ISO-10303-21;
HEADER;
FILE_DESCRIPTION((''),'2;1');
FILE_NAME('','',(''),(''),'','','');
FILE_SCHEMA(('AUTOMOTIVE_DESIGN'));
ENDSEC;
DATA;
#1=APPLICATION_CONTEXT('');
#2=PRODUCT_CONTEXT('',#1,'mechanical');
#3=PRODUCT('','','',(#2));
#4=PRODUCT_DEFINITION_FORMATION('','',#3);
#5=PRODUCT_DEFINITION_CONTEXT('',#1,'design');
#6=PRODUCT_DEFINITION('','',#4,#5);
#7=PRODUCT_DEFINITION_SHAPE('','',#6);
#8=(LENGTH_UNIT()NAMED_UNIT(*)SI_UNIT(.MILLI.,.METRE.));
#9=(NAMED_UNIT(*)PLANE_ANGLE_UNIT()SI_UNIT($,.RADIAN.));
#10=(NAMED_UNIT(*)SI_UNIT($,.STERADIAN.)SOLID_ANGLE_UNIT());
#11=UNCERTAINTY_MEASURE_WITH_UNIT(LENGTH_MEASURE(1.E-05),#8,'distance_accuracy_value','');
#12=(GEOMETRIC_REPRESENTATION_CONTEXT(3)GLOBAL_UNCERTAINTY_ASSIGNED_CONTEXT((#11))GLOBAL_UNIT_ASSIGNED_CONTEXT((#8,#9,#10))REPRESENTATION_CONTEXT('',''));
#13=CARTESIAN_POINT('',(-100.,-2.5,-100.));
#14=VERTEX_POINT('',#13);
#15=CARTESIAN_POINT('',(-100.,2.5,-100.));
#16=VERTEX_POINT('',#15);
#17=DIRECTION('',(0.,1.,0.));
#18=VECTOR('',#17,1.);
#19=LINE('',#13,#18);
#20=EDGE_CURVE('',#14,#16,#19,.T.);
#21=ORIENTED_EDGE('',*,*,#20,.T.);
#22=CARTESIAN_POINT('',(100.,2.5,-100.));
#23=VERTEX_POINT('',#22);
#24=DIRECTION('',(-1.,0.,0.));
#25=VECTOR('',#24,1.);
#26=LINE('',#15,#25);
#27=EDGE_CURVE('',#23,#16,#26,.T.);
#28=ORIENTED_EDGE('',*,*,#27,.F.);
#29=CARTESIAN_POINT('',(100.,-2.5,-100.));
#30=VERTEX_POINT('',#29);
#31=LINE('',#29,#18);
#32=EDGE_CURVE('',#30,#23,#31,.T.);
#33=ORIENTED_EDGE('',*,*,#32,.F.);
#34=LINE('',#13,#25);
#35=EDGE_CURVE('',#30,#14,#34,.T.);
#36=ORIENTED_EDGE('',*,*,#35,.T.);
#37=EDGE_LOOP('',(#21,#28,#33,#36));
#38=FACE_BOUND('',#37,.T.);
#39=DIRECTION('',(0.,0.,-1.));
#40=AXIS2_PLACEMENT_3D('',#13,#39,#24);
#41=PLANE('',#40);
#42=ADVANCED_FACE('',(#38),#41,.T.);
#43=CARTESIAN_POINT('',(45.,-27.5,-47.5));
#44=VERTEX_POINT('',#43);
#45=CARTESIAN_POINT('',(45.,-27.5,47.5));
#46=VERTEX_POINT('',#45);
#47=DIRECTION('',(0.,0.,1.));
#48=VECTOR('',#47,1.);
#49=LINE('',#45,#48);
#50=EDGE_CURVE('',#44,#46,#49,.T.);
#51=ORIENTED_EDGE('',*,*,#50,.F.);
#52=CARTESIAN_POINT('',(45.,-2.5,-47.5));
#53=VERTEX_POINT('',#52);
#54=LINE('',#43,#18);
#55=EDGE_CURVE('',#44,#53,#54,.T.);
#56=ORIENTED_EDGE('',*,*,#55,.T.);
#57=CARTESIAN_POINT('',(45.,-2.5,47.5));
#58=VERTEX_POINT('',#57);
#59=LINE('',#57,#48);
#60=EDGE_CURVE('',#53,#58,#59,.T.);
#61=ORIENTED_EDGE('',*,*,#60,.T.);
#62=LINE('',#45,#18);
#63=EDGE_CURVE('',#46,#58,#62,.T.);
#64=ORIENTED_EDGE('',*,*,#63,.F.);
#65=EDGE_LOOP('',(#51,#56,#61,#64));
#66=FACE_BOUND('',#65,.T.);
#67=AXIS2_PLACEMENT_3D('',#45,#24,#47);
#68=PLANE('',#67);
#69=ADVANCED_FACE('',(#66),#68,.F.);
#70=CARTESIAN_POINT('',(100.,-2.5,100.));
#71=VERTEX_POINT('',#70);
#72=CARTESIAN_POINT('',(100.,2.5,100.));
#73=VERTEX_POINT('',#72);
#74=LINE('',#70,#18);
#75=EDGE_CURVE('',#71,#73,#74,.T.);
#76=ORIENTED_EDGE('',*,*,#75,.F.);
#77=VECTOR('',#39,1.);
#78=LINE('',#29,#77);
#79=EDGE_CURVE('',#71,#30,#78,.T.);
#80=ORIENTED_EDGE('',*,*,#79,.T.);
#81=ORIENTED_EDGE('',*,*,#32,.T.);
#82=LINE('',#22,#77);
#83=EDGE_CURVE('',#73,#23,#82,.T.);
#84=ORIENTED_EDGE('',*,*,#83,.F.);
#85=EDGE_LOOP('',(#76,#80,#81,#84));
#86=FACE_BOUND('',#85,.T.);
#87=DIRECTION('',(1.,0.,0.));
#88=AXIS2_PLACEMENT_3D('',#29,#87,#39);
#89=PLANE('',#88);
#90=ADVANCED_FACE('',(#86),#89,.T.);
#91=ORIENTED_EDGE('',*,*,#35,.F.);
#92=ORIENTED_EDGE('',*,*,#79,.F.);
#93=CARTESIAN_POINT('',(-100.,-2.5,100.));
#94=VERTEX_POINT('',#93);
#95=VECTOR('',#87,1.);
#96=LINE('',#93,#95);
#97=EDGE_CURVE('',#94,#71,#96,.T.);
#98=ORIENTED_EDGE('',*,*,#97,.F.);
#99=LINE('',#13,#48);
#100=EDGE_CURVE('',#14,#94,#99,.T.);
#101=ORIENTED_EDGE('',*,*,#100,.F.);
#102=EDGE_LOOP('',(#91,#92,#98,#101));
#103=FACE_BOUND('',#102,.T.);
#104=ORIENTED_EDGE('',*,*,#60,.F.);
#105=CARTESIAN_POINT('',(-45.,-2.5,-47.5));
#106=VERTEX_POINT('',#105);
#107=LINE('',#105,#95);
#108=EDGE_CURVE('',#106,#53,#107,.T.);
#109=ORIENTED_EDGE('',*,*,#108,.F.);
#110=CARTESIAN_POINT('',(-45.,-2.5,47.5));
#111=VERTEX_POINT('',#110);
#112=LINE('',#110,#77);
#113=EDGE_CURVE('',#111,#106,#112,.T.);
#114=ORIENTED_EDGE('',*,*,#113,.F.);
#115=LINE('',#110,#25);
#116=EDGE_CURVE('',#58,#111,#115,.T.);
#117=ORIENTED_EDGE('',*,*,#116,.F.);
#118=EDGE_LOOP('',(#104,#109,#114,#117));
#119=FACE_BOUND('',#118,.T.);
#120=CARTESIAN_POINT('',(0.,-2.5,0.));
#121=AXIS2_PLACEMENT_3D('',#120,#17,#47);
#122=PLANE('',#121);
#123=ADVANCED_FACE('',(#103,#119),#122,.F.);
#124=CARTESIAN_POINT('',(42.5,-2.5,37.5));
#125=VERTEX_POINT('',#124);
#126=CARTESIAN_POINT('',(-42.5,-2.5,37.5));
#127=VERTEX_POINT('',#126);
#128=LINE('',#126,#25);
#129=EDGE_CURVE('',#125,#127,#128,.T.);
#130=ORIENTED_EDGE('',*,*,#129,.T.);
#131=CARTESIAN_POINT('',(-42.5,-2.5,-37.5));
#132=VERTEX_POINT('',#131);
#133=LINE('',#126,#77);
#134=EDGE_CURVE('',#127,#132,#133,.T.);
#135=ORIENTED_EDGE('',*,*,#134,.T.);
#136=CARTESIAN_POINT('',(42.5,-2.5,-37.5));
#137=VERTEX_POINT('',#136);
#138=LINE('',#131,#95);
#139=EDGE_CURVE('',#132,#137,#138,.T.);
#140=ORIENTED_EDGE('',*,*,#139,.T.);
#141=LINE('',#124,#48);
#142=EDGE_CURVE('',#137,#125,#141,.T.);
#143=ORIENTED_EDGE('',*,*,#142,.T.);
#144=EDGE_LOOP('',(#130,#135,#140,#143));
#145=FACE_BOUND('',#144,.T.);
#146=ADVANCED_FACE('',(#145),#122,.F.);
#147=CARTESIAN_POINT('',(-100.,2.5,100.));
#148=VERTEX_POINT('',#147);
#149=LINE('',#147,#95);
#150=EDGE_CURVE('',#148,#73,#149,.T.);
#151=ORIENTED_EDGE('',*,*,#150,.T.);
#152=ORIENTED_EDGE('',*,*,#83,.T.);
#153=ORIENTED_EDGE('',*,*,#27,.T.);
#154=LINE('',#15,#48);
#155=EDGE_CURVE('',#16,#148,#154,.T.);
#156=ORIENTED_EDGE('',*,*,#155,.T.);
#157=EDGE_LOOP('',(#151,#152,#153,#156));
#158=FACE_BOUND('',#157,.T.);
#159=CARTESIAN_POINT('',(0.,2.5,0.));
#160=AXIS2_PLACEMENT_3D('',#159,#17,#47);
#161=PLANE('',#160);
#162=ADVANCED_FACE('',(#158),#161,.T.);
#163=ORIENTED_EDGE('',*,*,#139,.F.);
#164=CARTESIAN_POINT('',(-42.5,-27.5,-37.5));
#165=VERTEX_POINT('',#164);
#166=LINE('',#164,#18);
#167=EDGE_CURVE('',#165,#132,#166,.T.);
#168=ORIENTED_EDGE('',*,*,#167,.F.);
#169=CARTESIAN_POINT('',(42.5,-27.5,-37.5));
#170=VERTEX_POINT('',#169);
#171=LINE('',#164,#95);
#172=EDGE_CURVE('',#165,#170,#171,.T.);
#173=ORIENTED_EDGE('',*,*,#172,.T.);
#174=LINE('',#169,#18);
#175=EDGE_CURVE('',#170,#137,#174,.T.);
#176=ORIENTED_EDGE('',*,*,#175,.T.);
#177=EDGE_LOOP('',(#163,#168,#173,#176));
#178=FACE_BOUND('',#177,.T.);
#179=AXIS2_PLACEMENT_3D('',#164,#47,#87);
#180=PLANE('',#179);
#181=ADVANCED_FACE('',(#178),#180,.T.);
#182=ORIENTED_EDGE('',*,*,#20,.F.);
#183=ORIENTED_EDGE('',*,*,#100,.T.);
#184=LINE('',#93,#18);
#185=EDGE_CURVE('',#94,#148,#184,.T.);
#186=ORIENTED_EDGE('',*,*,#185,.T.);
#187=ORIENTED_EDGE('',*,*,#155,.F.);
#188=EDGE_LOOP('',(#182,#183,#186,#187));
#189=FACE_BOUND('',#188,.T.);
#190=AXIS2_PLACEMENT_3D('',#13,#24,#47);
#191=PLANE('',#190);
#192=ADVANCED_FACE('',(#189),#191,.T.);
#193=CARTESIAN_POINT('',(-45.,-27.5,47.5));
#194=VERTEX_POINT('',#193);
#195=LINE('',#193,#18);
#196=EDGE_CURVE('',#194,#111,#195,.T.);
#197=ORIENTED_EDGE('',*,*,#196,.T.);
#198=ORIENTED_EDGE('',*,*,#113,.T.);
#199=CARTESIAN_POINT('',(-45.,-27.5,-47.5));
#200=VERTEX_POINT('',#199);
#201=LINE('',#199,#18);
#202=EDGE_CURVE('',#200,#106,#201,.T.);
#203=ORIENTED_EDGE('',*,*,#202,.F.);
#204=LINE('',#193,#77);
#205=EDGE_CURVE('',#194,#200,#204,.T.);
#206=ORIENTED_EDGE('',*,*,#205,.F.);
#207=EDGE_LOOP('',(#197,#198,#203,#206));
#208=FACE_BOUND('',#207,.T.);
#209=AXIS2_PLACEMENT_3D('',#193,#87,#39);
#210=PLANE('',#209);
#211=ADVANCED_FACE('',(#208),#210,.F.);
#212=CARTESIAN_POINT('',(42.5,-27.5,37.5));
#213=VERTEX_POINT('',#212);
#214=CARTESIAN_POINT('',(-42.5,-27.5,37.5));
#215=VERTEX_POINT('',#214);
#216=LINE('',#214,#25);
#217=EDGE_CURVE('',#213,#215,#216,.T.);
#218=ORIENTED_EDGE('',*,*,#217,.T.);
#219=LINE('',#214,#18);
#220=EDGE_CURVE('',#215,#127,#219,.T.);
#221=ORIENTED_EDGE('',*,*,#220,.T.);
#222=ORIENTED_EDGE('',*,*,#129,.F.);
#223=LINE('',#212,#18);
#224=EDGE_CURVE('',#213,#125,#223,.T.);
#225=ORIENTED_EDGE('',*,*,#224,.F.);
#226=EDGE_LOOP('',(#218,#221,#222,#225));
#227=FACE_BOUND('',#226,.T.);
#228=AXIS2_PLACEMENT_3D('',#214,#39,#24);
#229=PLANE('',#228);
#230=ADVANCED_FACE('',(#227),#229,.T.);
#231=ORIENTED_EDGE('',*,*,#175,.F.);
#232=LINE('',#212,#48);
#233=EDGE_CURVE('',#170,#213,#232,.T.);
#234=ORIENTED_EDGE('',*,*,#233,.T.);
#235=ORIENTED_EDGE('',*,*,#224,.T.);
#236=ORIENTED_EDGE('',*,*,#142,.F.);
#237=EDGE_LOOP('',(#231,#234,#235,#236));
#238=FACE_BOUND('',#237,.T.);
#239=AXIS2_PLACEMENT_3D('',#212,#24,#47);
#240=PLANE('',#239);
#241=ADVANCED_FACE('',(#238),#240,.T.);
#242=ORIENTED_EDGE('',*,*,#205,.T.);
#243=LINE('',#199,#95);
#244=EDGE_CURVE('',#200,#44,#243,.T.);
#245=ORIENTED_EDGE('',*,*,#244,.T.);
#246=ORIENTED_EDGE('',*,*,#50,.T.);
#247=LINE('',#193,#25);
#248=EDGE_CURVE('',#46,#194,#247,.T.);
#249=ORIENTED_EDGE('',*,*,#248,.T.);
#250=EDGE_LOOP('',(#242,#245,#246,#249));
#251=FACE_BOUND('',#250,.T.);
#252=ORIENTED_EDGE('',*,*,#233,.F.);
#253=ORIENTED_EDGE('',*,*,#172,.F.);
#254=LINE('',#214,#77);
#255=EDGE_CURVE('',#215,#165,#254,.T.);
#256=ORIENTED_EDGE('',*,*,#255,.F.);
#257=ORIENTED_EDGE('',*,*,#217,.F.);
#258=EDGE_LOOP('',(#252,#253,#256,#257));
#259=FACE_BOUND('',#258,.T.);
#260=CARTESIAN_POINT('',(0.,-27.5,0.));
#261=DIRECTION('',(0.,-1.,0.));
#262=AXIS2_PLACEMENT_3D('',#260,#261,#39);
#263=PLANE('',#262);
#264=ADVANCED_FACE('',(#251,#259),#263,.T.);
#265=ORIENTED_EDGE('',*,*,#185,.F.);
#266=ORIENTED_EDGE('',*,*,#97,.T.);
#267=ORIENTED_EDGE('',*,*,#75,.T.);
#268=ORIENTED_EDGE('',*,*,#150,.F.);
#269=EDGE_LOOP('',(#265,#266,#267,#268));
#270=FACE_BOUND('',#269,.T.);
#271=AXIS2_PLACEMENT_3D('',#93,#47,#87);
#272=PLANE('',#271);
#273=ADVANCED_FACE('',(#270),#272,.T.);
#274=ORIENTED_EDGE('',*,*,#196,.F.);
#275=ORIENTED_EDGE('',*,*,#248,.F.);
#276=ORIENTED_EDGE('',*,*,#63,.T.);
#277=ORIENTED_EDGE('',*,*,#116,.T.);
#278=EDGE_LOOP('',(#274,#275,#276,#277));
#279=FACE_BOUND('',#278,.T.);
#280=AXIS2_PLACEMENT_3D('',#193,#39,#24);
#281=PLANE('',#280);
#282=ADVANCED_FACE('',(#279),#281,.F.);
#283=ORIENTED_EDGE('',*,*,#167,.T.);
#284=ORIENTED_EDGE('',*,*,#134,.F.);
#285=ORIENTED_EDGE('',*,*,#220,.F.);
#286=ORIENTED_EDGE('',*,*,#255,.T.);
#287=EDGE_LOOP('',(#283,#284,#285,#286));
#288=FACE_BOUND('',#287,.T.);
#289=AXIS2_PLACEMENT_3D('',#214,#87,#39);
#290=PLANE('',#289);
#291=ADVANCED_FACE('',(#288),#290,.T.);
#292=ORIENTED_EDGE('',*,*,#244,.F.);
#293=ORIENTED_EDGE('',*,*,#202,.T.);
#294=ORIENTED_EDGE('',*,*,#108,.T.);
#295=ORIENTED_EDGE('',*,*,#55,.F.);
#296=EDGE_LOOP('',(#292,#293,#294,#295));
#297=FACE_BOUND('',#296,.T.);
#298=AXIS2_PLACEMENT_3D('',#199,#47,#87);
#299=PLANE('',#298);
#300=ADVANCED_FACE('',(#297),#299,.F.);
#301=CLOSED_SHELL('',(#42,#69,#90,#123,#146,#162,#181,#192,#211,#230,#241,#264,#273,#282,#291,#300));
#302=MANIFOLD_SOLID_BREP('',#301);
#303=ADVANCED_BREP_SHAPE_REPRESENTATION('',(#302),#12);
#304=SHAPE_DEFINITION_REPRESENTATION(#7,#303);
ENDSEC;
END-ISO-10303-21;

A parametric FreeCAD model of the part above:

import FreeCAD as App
import Part
import Sketcher
from FreeCAD import Vector
Q = App.Units.Quantity

doc = App.newDocument("Part")
params = doc.addObject("Spreadsheet::Sheet", "Params")
for row, (alias, value) in enumerate([
    ("sketch1_width", "200 mm"),
    ("pad1_length", "2.5 mm"),
    ("pad1_length2", "2.5 mm"),
    ("sketch2_width", "90 mm"),
    ("sketch2_width2", "85 mm"),
    ("sketch2_height", "95 mm"),
    ("sketch2_height2", "75 mm"),
    ("pad2_length", "25 mm"),
], start=1):
    params.set(f"A{row}", alias)
    params.set(f"B{row}", "=" + value)
    params.setAlias(f"B{row}", alias)

body = doc.addObject("PartDesign::Body", "Body")

sketch1 = body.newObject("Sketcher::SketchObject", "Sketch")
sketch1.AttachmentSupport = (doc.getObject("XZ_Plane"), [""])
sketch1.MapMode = "FlatFace"
sketch1.addGeometry([
    Part.LineSegment(Vector(-100, -100, 0), Vector(-100, 100, 0)),
    Part.LineSegment(Vector(-100, 100, 0), Vector(100, 100, 0)),
    Part.LineSegment(Vector(100, 100, 0), Vector(100, -100, 0)),
    Part.LineSegment(Vector(100, -100, 0), Vector(-100, -100, 0)),
], False)
sketch1.addConstraint([
    Sketcher.Constraint("Coincident", 0, 2, 1, 1),
    Sketcher.Constraint("Coincident", 1, 2, 2, 1),
    Sketcher.Constraint("Coincident", 2, 2, 3, 1),
    Sketcher.Constraint("Coincident", 3, 2, 0, 1),
    Sketcher.Constraint("Vertical", 0),
    Sketcher.Constraint("Horizontal", 1),
    Sketcher.Constraint("Vertical", 2),
    Sketcher.Constraint("Horizontal", 3),
    Sketcher.Constraint("Symmetric", 0, 2, 2, 2, -1, 1),
    Sketcher.Constraint("Equal", 3, 0),
    Sketcher.Constraint("DistanceX", 1, 1, 1, 2, Q("200 mm")),
])
sketch1.setExpression("Constraints[10]", "Params.sketch1_width")
pad1 = body.newObject("PartDesign::Pad", "Pad")
pad1.Profile = sketch1
pad1.Type = "TwoLengths"
pad1.setExpression("Length", "Params.pad1_length")
pad1.setExpression("Length2", "Params.pad1_length2")
pad1.Reversed = True

sketch2 = body.newObject("Sketcher::SketchObject", "Sketch001")
sketch2.AttachmentSupport = (doc.getObject("XZ_Plane"), [""])
sketch2.MapMode = "FlatFace"
sketch2.AttachmentOffset = App.Placement(Vector(0, 0, 2.5), App.Rotation())
sketch2.addGeometry([
    Part.LineSegment(Vector(45, -48, 0), Vector(45, 48, 0)),
    Part.LineSegment(Vector(45, 48, 0), Vector(-45, 48, 0)),
    Part.LineSegment(Vector(-45, 48, 0), Vector(-45, -48, 0)),
    Part.LineSegment(Vector(-45, -48, 0), Vector(45, -48, 0)),
    Part.LineSegment(Vector(-42, 38, 0), Vector(42, 38, 0)),
    Part.LineSegment(Vector(42, 38, 0), Vector(42, -38, 0)),
    Part.LineSegment(Vector(42, -38, 0), Vector(-42, -38, 0)),
    Part.LineSegment(Vector(-42, -38, 0), Vector(-42, 38, 0)),
], False)
sketch2.addConstraint([
    Sketcher.Constraint("Coincident", 0, 2, 1, 1),
    Sketcher.Constraint("Coincident", 1, 2, 2, 1),
    Sketcher.Constraint("Coincident", 2, 2, 3, 1),
    Sketcher.Constraint("Coincident", 3, 2, 0, 1),
    Sketcher.Constraint("Coincident", 4, 2, 5, 1),
    Sketcher.Constraint("Coincident", 5, 2, 6, 1),
    Sketcher.Constraint("Coincident", 6, 2, 7, 1),
    Sketcher.Constraint("Coincident", 7, 2, 4, 1),
    Sketcher.Constraint("Vertical", 0),
    Sketcher.Constraint("Horizontal", 1),
    Sketcher.Constraint("Vertical", 2),
    Sketcher.Constraint("Horizontal", 3),
    Sketcher.Constraint("Horizontal", 4),
    Sketcher.Constraint("Vertical", 5),
    Sketcher.Constraint("Horizontal", 6),
    Sketcher.Constraint("Vertical", 7),
    Sketcher.Constraint("Symmetric", 0, 2, 2, 2, -1, 1),
    Sketcher.Constraint("Symmetric", 4, 2, 6, 2, -1, 1),
    Sketcher.Constraint("DistanceX", 1, 2, 1, 1, Q("90 mm")),
    Sketcher.Constraint("DistanceX", 4, 1, 4, 2, Q("85 mm")),
    Sketcher.Constraint("DistanceY", 0, 1, 0, 2, Q("95 mm")),
    Sketcher.Constraint("DistanceY", 5, 2, 5, 1, Q("75 mm")),
])
sketch2.setExpression("Constraints[18]", "Params.sketch2_width")
sketch2.setExpression("Constraints[19]", "Params.sketch2_width2")
sketch2.setExpression("Constraints[20]", "Params.sketch2_height")
sketch2.setExpression("Constraints[21]", "Params.sketch2_height2")
pad2 = body.newObject("PartDesign::Pad", "Pad001")
pad2.Profile = sketch2
pad2.setExpression("Length", "Params.pad2_length")

doc.recompute()
